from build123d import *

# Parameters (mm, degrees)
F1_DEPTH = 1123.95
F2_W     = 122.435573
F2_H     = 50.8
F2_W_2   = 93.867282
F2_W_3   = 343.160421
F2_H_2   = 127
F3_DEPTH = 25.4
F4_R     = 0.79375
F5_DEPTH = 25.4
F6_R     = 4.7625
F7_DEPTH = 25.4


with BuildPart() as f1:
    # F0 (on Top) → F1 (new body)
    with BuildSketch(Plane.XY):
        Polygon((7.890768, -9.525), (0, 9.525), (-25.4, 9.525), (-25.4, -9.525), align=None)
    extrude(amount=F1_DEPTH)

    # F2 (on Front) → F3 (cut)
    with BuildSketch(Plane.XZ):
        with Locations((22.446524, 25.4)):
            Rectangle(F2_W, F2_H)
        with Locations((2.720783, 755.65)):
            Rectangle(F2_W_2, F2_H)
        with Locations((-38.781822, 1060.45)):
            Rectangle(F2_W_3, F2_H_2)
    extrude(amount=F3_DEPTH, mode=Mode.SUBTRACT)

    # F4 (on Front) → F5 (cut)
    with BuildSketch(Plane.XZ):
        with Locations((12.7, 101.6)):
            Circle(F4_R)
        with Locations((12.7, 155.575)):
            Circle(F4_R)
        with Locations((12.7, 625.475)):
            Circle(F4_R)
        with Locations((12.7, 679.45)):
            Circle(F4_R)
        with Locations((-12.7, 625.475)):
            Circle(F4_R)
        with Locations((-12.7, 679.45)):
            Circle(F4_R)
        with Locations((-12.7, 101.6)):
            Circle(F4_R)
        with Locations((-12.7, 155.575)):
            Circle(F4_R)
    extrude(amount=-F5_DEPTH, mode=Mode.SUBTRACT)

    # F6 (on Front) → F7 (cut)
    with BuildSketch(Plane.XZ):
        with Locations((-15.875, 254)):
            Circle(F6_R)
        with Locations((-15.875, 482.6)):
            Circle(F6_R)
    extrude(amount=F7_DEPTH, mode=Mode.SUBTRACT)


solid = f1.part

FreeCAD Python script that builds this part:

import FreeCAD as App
import Part
import Sketcher
from FreeCAD import Vector
Q = App.Units.Quantity

doc = App.newDocument("Part")
body = doc.addObject("PartDesign::Body", "Body")

sketch1 = body.newObject("Sketcher::SketchObject", "Sketch")
sketch1.AttachmentSupport = (doc.getObject("XY_Plane"), [""])
sketch1.MapMode = "FlatFace"
sketch1.addGeometry(Part.LineSegment(Vector(8, -10, 0), Vector(0, 10, 0)), False)
sketch1.addGeometry(Part.LineSegment(Vector(0, 10, 0), Vector(-25, 10, 0)), False)
sketch1.addGeometry(Part.LineSegment(Vector(-25, 10, 0), Vector(-25, -10, 0)), False)
sketch1.addGeometry(Part.LineSegment(Vector(-25, -10, 0), Vector(8, -10, 0)), False)
sketch1.addConstraint(Sketcher.Constraint("Coincident", 0, 2, 1, 1))
sketch1.addConstraint(Sketcher.Constraint("Coincident", 1, 2, 2, 1))
sketch1.addConstraint(Sketcher.Constraint("Coincident", 2, 2, 3, 1))
sketch1.addConstraint(Sketcher.Constraint("Coincident", 3, 2, 0, 1))
sketch1.addConstraint(Sketcher.Constraint("Horizontal", 1))
sketch1.addConstraint(Sketcher.Constraint("Vertical", 2))
sketch1.addConstraint(Sketcher.Constraint("Horizontal", 3))
sketch1.addConstraint(Sketcher.Constraint("PointOnObject", 0, 2, -2))
sketch1.addConstraint(Sketcher.Constraint("DistanceX", 1, 2, 1, 1, Q("1 in")))
sketch1.addConstraint(Sketcher.Constraint("DistanceY", 2, 2, 2, 1, Q("0.75 in")))
sketch1.addConstraint(Sketcher.Constraint("Angle", 0, Q("112.499999 deg")))
sketch1.addConstraint(Sketcher.Constraint("DistanceY", -1, 1, 0, 2, Q("0.375 in")))
pad1 = body.newObject("PartDesign::Pad", "Pad")
pad1.Profile = sketch1
pad1.Length = Q("44.25 in")

sketch2 = body.newObject("Sketcher::SketchObject", "Sketch001")
sketch2.AttachmentSupport = (doc.getObject("XZ_Plane"), [""])
sketch2.MapMode = "FlatFace"
sketch2.addGeometry(Part.LineSegment(Vector(-39, 51, 0), Vector(-39, 0, 0)), False)
sketch2.addGeometry(Part.LineSegment(Vector(-39, 0, 0), Vector(84, 0, 0)), False)
sketch2.addGeometry(Part.LineSegment(Vector(84, 0, 0), Vector(84, 51, 0)), False)
sketch2.addGeometry(Part.LineSegment(Vector(84, 51, 0), Vector(-39, 51, 0)), False)
sketch2.addGeometry(Part.LineSegment(Vector(-44, 781, 0), Vector(-44, 730, 0)), False)
sketch2.addGeometry(Part.LineSegment(Vector(-44, 730, 0), Vector(50, 730, 0)), False)
sketch2.addGeometry(Part.LineSegment(Vector(50, 730, 0), Vector(50, 781, 0)), False)
sketch2.addGeometry(Part.LineSegment(Vector(50, 781, 0), Vector(-44, 781, 0)), False)
sketch2.addGeometry(Part.LineSegment(Vector(-210, 1124, 0), Vector(-210, 997, 0)), False)
sketch2.addGeometry(Part.LineSegment(Vector(-210, 997, 0), Vector(133, 997, 0)), False)
sketch2.addGeometry(Part.LineSegment(Vector(133, 997, 0), Vector(133, 1124, 0)), False)
sketch2.addGeometry(Part.LineSegment(Vector(133, 1124, 0), Vector(-210, 1124, 0)), False)
sketch2.addConstraint(Sketcher.Constraint("Coincident", 0, 2, 1, 1))
sketch2.addConstraint(Sketcher.Constraint("Coincident", 1, 2, 2, 1))
sketch2.addConstraint(Sketcher.Constraint("Coincident", 2, 2, 3, 1))
sketch2.addConstraint(Sketcher.Constraint("Coincident", 3, 2, 0, 1))
sketch2.addConstraint(Sketcher.Constraint("Coincident", 4, 2, 5, 1))
sketch2.addConstraint(Sketcher.Constraint("Coincident", 5, 2, 6, 1))
sketch2.addConstraint(Sketcher.Constraint("Coincident", 6, 2, 7, 1))
sketch2.addConstraint(Sketcher.Constraint("Coincident", 7, 2, 4, 1))
sketch2.addConstraint(Sketcher.Constraint("Coincident", 8, 2, 9, 1))
sketch2.addConstraint(Sketcher.Constraint("Coincident", 9, 2, 10, 1))
sketch2.addConstraint(Sketcher.Constraint("Coincident", 10, 2, 11, 1))
sketch2.addConstraint(Sketcher.Constraint("Coincident", 11, 2, 8, 1))
sketch2.addConstraint(Sketcher.Constraint("Vertical", 0))
sketch2.addConstraint(Sketcher.Constraint("Horizontal", 1))
sketch2.addConstraint(Sketcher.Constraint("Vertical", 2))
sketch2.addConstraint(Sketcher.Constraint("Horizontal", 3))
sketch2.addConstraint(Sketcher.Constraint("Vertical", 4))
sketch2.addConstraint(Sketcher.Constraint("Horizontal", 5))
sketch2.addConstraint(Sketcher.Constraint("Vertical", 6))
sketch2.addConstraint(Sketcher.Constraint("Horizontal", 7))
sketch2.addConstraint(Sketcher.Constraint("Vertical", 8))
sketch2.addConstraint(Sketcher.Constraint("Horizontal", 9))
sketch2.addConstraint(Sketcher.Constraint("Vertical", 10))
sketch2.addConstraint(Sketcher.Constraint("Horizontal", 11))
sketch2.addConstraint(Sketcher.Constraint("PointOnObject", 0, 2, -1))
sketch2.addConstraint(Sketcher.Constraint("Equal", 2, 4))
sketch2.addConstraint(Sketcher.Constraint("DistanceY", 0, 2, 0, 1, Q("2 in")))
sketch2.addConstraint(Sketcher.Constraint("DistanceY", 8, 2, 8, 1, Q("5 in")))
sketch2.addConstraint(Sketcher.Constraint("DistanceY", 7, 2, 8, 2, Q("8.5 in")))
sketch2.addConstraint(Sketcher.Constraint("DistanceY", -1, 1, 4, 2, Q("28.75 in")))
sketch2.addConstraint(Sketcher.Constraint("DistanceX", 5, 1, 5, 2, Q("93.867282 mm")))
sketch2.addConstraint(Sketcher.Constraint("DistanceX", 9, 1, 9, 2, Q("343.160421 mm")))
sketch2.addConstraint(Sketcher.Constraint("DistanceX", 1, 1, 1, 2, Q("122.435573 mm")))
sketch2.addConstraint(Sketcher.Constraint("DistanceX", -1, 1, 1, 2, Q("83.66431 mm")))
sketch2.addConstraint(Sketcher.Constraint("DistanceX", -1, 1, 9, 2, Q("132.798388 mm")))
sketch2.addConstraint(Sketcher.Constraint("DistanceX", 4, 2, 2, 2, Q("127.877168 mm")))
pocket1 = body.newObject("PartDesign::Pocket", "Pocket")
pocket1.Profile = sketch2
pocket1.Length = Q("1 in")
pocket1.Reversed = True

sketch3 = body.newObject("Sketcher::SketchObject", "Sketch002")
sketch3.AttachmentSupport = (doc.getObject("XZ_Plane"), [""])
sketch3.MapMode = "FlatFace"
sketch3.addGeometry(Part.Circle(Vector(12.7, 101.6, 0), Vector(0, 0, 1), 0.8), False)
sketch3.addGeometry(Part.Circle(Vector(12.7, 155.6, 0), Vector(0, 0, 1), 0.8), False)
sketch3.addGeometry(Part.Circle(Vector(12.7, 625.5, 0), Vector(0, 0, 1), 0.8), False)
sketch3.addGeometry(Part.Circle(Vector(12.7, 679.5, 0), Vector(0, 0, 1), 0.8), False)
sketch3.addGeometry(Part.Circle(Vector(-12.7, 625.5, 0), Vector(0, 0, 1), 0.8), False)
sketch3.addGeometry(Part.Circle(Vector(-12.7, 679.5, 0), Vector(0, 0, 1), 0.8), False)
sketch3.addGeometry(Part.Circle(Vector(-12.7, 101.6, 0), Vector(0, 0, 1), 0.8), False)
sketch3.addGeometry(Part.Circle(Vector(-12.7, 155.6, 0), Vector(0, 0, 1), 0.8), False)
sketch3.addConstraint(Sketcher.Constraint("Equal", 0, 1))
sketch3.addConstraint(Sketcher.Constraint("Equal", 1, 2))
sketch3.addConstraint(Sketcher.Constraint("Equal", 2, 3))
sketch3.addConstraint(Sketcher.Constraint("Equal", 3, 4))
sketch3.addConstraint(Sketcher.Constraint("Equal", 4, 5))
sketch3.addConstraint(Sketcher.Constraint("Equal", 5, 6))
sketch3.addConstraint(Sketcher.Constraint("Equal", 6, 7))
sketch3.addConstraint(Sketcher.Constraint("Symmetric", 2, 3, 4, 3, -2))
sketch3.addConstraint(Sketcher.Constraint("Symmetric", 3, 3, 5, 3, -2))
sketch3.addConstraint(Sketcher.Constraint("Symmetric", 0, 3, 6, 3, -2))
sketch3.addConstraint(Sketcher.Constraint("Symmetric", 1, 3, 7, 3, -2))
sketch3.addConstraint(Sketcher.Constraint("Vertical", 0, 3, 1, 3))
sketch3.addConstraint(Sketcher.Constraint("Vertical", 1, 3, 2, 3))
sketch3.addConstraint(Sketcher.Constraint("Vertical", 2, 3, 3, 3))
sketch3.addConstraint(Sketcher.Constraint("Diameter", 0, Q("0.0625 in")))
sketch3.addConstraint(Sketcher.Constraint("DistanceY", -1, 1, 0, 3, Q("4 in")))
sketch3.addConstraint(Sketcher.Constraint("DistanceX", 4, 3, 2, 3, Q("1 in")))
sketch3.addConstraint(Sketcher.Constraint("DistanceY", 1, 3, 2, 3, Q("18.5 in")))
sketch3.addConstraint(Sketcher.Constraint("DistanceY", -1, 1, 3, 3, Q("26.75 in")))
sketch3.addConstraint(Sketcher.Constraint("DistanceY", -1, 1, 1, 3, Q("6.125 in")))
pocket2 = body.newObject("PartDesign::Pocket", "Pocket001")
pocket2.Profile = sketch3
pocket2.Length = Q("1 in")

sketch4 = body.newObject("Sketcher::SketchObject", "Sketch003")
sketch4.AttachmentSupport = (doc.getObject("XZ_Plane"), [""])
sketch4.MapMode = "FlatFace"
sketch4.addGeometry(Part.Circle(Vector(-15.9, 254, 0), Vector(0, 0, 1), 4.8), False)
sketch4.addGeometry(Part.Circle(Vector(-15.9, 482.6, 0), Vector(0, 0, 1), 4.8), False)
sketch4.addConstraint(Sketcher.Constraint("Equal", 0, 1))
sketch4.addConstraint(Sketcher.Constraint("Vertical", 0, 3, 1, 3))
sketch4.addConstraint(Sketcher.Constraint("Diameter", 0, Q("0.375 in")))
sketch4.addConstraint(Sketcher.Constraint("DistanceY", -1, 1, 0, 3, Q("10 in")))
sketch4.addConstraint(Sketcher.Constraint("DistanceY", -1, 1, 1, 3, Q("19 in")))
sketch4.addConstraint(Sketcher.Constraint("DistanceX", 0, 3, -1, 1, Q("0.625 in")))
pocket3 = body.newObject("PartDesign::Pocket", "Pocket002")
pocket3.Profile = sketch4
pocket3.Length = Q("1 in")
pocket3.Reversed = True

doc.recompute()
